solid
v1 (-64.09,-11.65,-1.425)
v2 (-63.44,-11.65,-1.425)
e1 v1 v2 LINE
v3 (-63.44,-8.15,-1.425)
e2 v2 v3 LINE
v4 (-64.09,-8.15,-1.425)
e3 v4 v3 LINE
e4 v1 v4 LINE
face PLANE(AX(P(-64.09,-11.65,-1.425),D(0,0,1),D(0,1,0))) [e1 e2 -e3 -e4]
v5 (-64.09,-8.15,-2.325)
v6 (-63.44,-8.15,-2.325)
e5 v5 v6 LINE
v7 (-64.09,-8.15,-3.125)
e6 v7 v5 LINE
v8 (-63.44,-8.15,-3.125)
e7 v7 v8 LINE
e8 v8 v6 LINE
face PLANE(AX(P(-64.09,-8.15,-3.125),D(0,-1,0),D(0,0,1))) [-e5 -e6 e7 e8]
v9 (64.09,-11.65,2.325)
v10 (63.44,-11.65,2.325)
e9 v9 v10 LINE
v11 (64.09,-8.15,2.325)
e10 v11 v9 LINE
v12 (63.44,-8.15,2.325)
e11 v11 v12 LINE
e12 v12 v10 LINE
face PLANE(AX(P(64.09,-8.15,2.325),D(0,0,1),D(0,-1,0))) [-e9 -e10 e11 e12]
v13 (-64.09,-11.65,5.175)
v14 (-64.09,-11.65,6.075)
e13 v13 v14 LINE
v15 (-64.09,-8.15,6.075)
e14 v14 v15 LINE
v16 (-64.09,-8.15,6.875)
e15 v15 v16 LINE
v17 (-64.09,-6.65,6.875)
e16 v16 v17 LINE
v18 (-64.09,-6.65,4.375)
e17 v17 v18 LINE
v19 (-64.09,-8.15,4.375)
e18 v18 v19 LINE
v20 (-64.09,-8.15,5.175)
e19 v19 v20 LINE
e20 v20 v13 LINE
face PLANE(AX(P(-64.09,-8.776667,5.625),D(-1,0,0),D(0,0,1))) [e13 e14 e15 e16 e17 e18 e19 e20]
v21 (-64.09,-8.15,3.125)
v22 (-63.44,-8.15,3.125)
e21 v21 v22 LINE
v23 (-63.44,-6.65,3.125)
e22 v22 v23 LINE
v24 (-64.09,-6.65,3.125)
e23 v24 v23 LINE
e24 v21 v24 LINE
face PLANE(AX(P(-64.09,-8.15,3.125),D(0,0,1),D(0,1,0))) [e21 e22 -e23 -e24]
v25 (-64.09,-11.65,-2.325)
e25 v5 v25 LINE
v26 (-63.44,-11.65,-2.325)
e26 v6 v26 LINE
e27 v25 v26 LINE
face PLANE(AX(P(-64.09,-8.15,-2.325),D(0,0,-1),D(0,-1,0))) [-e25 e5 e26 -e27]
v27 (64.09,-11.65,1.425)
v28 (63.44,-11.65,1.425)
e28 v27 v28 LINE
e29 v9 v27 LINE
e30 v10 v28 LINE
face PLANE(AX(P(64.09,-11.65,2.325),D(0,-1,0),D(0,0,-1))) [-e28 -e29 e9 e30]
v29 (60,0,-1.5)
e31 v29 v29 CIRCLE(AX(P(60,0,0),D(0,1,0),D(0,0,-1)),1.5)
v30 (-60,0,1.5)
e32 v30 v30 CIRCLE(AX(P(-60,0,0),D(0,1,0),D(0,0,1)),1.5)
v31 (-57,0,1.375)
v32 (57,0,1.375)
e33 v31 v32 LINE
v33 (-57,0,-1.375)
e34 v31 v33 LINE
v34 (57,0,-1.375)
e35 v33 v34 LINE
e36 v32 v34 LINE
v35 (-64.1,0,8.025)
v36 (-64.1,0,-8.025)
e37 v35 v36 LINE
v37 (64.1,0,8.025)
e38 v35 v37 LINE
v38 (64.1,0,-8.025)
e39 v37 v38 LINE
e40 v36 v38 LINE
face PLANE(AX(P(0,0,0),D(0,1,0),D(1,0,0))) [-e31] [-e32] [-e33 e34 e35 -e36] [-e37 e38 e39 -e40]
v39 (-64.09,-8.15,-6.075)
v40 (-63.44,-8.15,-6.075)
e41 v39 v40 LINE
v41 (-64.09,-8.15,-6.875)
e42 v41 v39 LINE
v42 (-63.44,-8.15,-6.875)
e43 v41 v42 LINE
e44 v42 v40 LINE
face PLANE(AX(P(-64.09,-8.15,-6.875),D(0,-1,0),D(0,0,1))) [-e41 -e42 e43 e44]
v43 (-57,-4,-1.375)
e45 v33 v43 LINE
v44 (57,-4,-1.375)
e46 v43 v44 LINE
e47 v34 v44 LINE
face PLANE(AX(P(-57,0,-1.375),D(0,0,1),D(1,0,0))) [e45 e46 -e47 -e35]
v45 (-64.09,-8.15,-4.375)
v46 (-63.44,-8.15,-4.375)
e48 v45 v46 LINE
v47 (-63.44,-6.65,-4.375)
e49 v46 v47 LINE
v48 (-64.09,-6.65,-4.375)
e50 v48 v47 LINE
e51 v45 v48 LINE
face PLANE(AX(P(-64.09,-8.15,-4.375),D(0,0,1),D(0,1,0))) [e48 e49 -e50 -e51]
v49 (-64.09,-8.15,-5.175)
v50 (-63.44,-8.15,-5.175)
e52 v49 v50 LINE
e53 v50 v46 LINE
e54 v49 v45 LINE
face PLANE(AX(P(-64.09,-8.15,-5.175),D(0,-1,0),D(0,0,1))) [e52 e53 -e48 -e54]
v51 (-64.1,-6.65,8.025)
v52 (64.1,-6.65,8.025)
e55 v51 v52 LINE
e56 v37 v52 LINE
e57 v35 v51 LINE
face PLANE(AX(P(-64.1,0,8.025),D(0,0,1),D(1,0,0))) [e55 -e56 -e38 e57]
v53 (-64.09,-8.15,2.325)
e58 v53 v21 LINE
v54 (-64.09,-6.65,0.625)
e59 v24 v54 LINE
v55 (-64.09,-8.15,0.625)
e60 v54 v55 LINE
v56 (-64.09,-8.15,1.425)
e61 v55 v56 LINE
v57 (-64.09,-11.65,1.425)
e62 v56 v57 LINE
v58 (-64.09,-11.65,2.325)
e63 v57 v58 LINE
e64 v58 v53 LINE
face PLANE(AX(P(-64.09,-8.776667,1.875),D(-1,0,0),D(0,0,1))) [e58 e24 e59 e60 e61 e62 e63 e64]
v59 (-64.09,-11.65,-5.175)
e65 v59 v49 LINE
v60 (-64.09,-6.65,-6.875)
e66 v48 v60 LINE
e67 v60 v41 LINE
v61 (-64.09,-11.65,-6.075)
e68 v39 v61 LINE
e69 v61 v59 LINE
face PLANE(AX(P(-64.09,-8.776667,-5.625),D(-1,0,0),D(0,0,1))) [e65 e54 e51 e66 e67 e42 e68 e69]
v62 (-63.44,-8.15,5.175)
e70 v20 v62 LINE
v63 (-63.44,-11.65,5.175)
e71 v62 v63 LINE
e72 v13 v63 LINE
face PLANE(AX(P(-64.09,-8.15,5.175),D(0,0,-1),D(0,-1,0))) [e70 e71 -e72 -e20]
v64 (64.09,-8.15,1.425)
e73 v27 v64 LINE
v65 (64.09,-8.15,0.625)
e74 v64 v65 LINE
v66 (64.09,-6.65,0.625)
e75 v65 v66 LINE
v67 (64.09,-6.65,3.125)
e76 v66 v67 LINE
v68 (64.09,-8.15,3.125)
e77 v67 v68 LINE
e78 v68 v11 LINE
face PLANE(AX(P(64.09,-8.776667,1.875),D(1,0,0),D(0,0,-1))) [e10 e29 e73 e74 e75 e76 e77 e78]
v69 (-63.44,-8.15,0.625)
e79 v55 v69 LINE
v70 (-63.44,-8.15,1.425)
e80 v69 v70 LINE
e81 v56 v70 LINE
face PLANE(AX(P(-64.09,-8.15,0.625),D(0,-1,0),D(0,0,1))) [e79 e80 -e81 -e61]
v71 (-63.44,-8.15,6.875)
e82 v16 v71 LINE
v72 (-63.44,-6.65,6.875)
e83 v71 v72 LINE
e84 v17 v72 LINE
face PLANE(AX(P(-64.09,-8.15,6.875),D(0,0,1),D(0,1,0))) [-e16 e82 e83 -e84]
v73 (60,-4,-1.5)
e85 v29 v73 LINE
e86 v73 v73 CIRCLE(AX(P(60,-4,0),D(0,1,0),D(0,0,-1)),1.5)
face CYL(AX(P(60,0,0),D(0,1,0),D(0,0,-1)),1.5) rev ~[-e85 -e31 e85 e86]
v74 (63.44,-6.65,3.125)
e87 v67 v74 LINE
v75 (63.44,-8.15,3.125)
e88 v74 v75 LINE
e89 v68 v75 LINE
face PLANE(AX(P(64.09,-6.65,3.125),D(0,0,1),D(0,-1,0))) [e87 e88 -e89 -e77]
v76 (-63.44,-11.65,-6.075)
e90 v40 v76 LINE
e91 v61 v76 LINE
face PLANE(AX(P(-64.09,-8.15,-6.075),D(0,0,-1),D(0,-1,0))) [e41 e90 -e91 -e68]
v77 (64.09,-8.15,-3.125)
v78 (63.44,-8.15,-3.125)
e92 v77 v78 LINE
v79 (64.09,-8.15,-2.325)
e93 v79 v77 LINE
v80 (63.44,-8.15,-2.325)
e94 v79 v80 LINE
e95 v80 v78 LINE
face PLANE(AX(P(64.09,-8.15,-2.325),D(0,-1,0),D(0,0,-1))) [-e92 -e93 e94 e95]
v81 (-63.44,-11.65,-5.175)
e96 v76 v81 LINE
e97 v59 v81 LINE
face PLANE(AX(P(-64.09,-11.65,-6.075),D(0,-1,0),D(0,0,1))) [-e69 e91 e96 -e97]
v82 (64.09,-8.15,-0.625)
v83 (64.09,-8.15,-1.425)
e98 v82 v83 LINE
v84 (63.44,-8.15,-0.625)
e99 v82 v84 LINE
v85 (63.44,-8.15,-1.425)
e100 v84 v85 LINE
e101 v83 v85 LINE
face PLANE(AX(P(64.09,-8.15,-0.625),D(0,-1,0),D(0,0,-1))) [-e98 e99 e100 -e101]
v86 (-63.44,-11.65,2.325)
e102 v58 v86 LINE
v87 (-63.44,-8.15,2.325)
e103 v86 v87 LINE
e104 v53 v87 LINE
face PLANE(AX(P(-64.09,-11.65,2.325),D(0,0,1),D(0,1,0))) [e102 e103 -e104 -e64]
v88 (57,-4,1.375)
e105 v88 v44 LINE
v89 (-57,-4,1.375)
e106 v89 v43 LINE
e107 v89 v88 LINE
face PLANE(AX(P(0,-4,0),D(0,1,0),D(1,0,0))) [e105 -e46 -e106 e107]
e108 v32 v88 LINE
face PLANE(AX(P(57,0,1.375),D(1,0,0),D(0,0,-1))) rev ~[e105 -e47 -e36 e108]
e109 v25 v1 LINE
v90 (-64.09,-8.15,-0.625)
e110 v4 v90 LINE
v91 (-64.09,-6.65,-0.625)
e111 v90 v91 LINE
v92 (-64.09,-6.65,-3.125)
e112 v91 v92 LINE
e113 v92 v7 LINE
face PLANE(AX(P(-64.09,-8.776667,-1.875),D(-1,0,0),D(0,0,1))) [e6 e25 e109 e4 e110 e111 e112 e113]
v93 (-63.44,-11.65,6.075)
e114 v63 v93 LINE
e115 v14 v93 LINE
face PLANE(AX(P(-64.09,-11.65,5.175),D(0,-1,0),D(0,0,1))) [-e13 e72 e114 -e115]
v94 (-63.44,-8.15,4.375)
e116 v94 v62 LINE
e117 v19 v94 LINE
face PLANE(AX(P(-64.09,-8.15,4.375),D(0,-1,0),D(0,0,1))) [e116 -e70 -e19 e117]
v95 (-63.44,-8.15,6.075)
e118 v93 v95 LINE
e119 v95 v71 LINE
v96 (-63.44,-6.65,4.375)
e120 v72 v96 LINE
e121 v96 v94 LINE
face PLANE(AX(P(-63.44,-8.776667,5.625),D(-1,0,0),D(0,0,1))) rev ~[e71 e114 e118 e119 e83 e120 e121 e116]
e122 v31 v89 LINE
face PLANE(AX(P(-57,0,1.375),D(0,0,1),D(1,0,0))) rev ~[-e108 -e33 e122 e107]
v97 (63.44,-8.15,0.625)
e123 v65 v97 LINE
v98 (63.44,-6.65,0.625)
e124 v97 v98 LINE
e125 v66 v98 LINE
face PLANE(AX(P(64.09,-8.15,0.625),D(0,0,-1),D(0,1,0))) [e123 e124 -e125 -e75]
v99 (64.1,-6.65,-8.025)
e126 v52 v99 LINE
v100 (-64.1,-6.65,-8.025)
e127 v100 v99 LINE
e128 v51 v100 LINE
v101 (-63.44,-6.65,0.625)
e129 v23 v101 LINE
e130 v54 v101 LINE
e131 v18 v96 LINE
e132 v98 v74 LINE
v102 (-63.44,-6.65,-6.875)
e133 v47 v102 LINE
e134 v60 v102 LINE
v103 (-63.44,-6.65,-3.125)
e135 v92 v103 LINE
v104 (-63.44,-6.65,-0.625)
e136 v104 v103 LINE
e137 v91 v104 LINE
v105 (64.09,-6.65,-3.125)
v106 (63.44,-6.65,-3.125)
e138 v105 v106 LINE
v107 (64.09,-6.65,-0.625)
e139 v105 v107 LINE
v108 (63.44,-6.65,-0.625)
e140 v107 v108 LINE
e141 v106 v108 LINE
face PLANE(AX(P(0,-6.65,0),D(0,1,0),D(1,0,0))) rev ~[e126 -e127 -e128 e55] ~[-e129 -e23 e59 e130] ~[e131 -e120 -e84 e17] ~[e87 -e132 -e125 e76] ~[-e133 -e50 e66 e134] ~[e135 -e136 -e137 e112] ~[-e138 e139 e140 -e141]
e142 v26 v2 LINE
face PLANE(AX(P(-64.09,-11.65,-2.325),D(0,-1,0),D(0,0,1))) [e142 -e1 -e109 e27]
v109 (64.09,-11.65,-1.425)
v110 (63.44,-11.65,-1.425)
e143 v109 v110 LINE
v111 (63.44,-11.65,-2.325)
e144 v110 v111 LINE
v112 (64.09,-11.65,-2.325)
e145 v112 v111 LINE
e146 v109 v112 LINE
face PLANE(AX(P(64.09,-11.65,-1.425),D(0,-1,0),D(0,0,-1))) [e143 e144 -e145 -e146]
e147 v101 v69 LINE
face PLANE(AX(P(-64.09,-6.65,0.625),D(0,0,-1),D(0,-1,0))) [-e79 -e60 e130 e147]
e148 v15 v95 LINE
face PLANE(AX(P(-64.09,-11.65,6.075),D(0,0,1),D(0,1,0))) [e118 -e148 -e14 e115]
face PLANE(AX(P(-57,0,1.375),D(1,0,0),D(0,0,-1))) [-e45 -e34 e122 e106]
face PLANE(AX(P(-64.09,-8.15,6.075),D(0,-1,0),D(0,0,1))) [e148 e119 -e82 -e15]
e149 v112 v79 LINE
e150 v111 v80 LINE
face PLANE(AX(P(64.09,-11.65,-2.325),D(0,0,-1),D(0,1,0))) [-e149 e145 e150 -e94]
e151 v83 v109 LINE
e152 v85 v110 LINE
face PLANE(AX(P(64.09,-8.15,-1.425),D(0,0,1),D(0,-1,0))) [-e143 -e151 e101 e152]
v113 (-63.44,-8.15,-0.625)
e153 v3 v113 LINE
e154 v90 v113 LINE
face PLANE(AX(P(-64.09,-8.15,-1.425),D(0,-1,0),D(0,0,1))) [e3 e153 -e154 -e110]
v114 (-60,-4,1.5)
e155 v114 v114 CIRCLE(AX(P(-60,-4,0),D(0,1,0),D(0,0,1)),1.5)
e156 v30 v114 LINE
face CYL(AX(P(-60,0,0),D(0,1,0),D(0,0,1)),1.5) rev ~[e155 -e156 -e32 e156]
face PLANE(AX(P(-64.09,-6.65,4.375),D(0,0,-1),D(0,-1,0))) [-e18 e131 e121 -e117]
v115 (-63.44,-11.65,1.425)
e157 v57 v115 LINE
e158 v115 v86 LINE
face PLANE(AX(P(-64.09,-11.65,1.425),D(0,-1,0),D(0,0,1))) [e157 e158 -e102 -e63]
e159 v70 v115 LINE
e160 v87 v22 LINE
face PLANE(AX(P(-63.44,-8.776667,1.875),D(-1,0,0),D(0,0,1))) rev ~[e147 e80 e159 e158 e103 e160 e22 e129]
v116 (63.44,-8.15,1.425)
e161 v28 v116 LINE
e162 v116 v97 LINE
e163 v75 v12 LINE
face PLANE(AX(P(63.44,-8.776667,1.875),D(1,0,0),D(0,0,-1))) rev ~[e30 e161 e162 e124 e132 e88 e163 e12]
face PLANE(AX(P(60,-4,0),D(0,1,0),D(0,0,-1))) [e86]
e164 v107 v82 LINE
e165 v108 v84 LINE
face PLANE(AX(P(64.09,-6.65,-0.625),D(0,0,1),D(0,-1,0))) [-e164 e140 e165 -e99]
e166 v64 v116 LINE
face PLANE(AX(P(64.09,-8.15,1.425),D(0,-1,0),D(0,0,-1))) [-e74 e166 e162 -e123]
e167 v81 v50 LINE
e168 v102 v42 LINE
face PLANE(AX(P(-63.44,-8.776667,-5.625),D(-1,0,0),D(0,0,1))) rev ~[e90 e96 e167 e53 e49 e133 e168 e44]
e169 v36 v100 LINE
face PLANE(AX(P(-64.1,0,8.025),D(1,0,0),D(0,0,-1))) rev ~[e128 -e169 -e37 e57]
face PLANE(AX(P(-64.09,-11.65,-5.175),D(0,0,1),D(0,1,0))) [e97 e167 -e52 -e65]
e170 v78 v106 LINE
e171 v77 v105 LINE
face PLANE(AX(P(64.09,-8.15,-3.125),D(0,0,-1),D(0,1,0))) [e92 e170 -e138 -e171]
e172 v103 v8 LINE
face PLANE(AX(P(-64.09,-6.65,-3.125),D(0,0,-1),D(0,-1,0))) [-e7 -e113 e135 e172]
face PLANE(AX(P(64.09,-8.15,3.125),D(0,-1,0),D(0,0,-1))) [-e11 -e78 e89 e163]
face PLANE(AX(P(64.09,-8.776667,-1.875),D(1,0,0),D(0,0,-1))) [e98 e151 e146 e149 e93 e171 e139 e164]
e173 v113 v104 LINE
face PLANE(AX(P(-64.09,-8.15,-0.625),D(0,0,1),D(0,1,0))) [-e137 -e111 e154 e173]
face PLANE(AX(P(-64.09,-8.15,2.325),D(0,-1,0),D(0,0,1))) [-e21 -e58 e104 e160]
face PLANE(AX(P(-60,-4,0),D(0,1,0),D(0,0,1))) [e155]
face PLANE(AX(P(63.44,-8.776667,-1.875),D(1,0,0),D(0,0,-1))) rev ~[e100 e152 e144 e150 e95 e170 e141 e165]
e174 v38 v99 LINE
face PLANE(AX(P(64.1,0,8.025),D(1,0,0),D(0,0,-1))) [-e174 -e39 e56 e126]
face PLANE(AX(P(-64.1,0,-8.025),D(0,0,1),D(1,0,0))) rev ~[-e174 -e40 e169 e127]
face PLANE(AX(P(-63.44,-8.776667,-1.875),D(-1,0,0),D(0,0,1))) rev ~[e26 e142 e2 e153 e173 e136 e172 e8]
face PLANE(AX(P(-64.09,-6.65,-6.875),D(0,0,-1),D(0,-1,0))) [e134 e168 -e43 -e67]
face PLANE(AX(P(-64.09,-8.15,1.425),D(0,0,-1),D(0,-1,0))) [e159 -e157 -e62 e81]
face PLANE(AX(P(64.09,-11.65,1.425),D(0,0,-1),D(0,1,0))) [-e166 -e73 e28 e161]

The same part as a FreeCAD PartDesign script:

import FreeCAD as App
import Part
import Sketcher


def add_polygon(sketch, points):
    """Adds a closed chain of lines whose ends are joined by coincident constraints."""
    first, n = sketch.GeometryCount, len(points)
    for a, b in zip(points, points[1:] + points[:1]):
        sketch.addGeometry(Part.LineSegment(App.Vector(*a, 0), App.Vector(*b, 0)), False)
    for i in range(n):
        sketch.addConstraint(Sketcher.Constraint("Coincident", first + i, 2, first + (i + 1) % n, 1))

doc = App.newDocument("Part")
body = doc.addObject("PartDesign::Body", "Body")

sketch1 = body.newObject("Sketcher::SketchObject", "Sketch")
sketch1.AttachmentSupport = (doc.getObject("XZ_Plane"), [""])
sketch1.MapMode = "FlatFace"
add_polygon(sketch1, [(-64.1, -8.025), (-64.1, 8.025), (64.1, 8.025), (64.1, -8.025)])
sketch1.addConstraint(Sketcher.Constraint("Vertical", 0))
sketch1.addConstraint(Sketcher.Constraint("Horizontal", 1))
sketch1.addConstraint(Sketcher.Constraint("Vertical", 2))
sketch1.addConstraint(Sketcher.Constraint("Horizontal", 3))
sketch1.addConstraint(Sketcher.Constraint("Symmetric", 0, 2, 2, 2, -1, 1))
sketch1.addConstraint(Sketcher.Constraint("DistanceX", 1, 1, 1, 2, 128.2))
sketch1.addConstraint(Sketcher.Constraint("DistanceY", 0, 1, 0, 2, 16.05))
pad1 = body.newObject("PartDesign::Pad", "Pad")
pad1.Profile = sketch1
pad1.Length = 6.65

sketch2 = body.newObject("Sketcher::SketchObject", "Sketch001")
sketch2.AttachmentSupport = (doc.getObject("XZ_Plane"), [""])
sketch2.MapMode = "FlatFace"
sketch2.addGeometry(Part.Circle(App.Vector(-60, 0, 0), App.Vector(0, 0, 1), 1.5), False)
sketch2.addGeometry(Part.Circle(App.Vector(60, 0, 0), App.Vector(0, 0, 1), 1.5), False)
add_polygon(sketch2, [(-57, -1.375), (-57, 1.375), (57, 1.375), (57, -1.375)])
sketch2.addConstraint(Sketcher.Constraint("Vertical", 2))
sketch2.addConstraint(Sketcher.Constraint("Horizontal", 3))
sketch2.addConstraint(Sketcher.Constraint("Vertical", 4))
sketch2.addConstraint(Sketcher.Constraint("Horizontal", 5))
sketch2.addConstraint(Sketcher.Constraint("Equal", 0, 1))
sketch2.addConstraint(Sketcher.Constraint("Symmetric", 0, 3, 1, 3, -1, 1))
sketch2.addConstraint(Sketcher.Constraint("Symmetric", 2, 2, 4, 2, -1, 1))
sketch2.addConstraint(Sketcher.Constraint("PointOnObject", 0, 3, -1))
sketch2.addConstraint(Sketcher.Constraint("Diameter", 0, 3.0))
sketch2.addConstraint(Sketcher.Constraint("DistanceX", 3, 1, 3, 2, 114.0))
sketch2.addConstraint(Sketcher.Constraint("DistanceX", 0, 3, -1, 1, 60.0))
sketch2.addConstraint(Sketcher.Constraint("DistanceY", 2, 1, 2, 2, 2.75))
pocket1 = body.newObject("PartDesign::Pocket", "Pocket")
pocket1.Profile = sketch2
pocket1.Length = 4
pocket1.Reversed = True

sketch3 = body.newObject("Sketcher::SketchObject", "Sketch002")
sketch3.AttachmentSupport = (doc.getObject("YZ_Plane"), [""])
sketch3.MapMode = "FlatFace"
sketch3.AttachmentOffset = App.Placement(App.Vector(0, 0, -64.09), App.Rotation())
add_polygon(sketch3, [(-6.65, -6.875), (-8.15, -6.875), (-8.15, -6.075), (-11.65, -6.075), (-11.65, -5.175), (-8.15, -5.175), (-8.15, -4.375), (-6.65, -4.375)])
add_polygon(sketch3, [(-6.65, -0.625), (-6.65, -3.125), (-8.15, -3.125), (-8.15, -2.325), (-11.65, -2.325), (-11.65, -1.425), (-8.15, -1.425), (-8.15, -0.625)])
add_polygon(sketch3, [(-6.65, 3.125), (-6.65, 0.625), (-8.15, 0.625), (-8.15, 1.425), (-11.65, 1.425), (-11.65, 2.325), (-8.15, 2.325), (-8.15, 3.125)])
add_polygon(sketch3, [(-6.65, 6.875), (-6.65, 4.375), (-8.15, 4.375), (-8.15, 5.175), (-11.65, 5.175), (-11.65, 6.075), (-8.15, 6.075), (-8.15, 6.875)])
sketch3.addConstraint(Sketcher.Constraint("Horizontal", 0))
sketch3.addConstraint(Sketcher.Constraint("Vertical", 1))
sketch3.addConstraint(Sketcher.Constraint("Horizontal", 2))
sketch3.addConstraint(Sketcher.Constraint("Vertical", 3))
sketch3.addConstraint(Sketcher.Constraint("Horizontal", 4))
sketch3.addConstraint(Sketcher.Constraint("Vertical", 5))
sketch3.addConstraint(Sketcher.Constraint("Horizontal", 6))
sketch3.addConstraint(Sketcher.Constraint("Vertical", 7))
sketch3.addConstraint(Sketcher.Constraint("Vertical", 8))
sketch3.addConstraint(Sketcher.Constraint("Horizontal", 9))
sketch3.addConstraint(Sketcher.Constraint("Vertical", 10))
sketch3.addConstraint(Sketcher.Constraint("Horizontal", 11))
sketch3.addConstraint(Sketcher.Constraint("Vertical", 12))
sketch3.addConstraint(Sketcher.Constraint("Horizontal", 13))
sketch3.addConstraint(Sketcher.Constraint("Vertical", 14))
sketch3.addConstraint(Sketcher.Constraint("Horizontal", 15))
sketch3.addConstraint(Sketcher.Constraint("Vertical", 16))
sketch3.addConstraint(Sketcher.Constraint("Horizontal", 17))
sketch3.addConstraint(Sketcher.Constraint("Vertical", 18))
sketch3.addConstraint(Sketcher.Constraint("Horizontal", 19))
sketch3.addConstraint(Sketcher.Constraint("Vertical", 20))
sketch3.addConstraint(Sketcher.Constraint("Horizontal", 21))
sketch3.addConstraint(Sketcher.Constraint("Vertical", 22))
sketch3.addConstraint(Sketcher.Constraint("Horizontal", 23))
sketch3.addConstraint(Sketcher.Constraint("Vertical", 24))
sketch3.addConstraint(Sketcher.Constraint("Horizontal", 25))
sketch3.addConstraint(Sketcher.Constraint("Vertical", 26))
sketch3.addConstraint(Sketcher.Constraint("Horizontal", 27))
sketch3.addConstraint(Sketcher.Constraint("Vertical", 28))
sketch3.addConstraint(Sketcher.Constraint("Horizontal", 29))
sketch3.addConstraint(Sketcher.Constraint("Vertical", 30))
sketch3.addConstraint(Sketcher.Constraint("Horizontal", 31))
sketch3.addConstraint(Sketcher.Constraint("Symmetric", 15, 2, 16, 2, -1))
sketch3.addConstraint(Sketcher.Constraint("Symmetric", 13, 2, 18, 2, -1))
sketch3.addConstraint(Sketcher.Constraint("Symmetric", 11, 2, 20, 2, -1))
sketch3.addConstraint(Sketcher.Constraint("Symmetric", 9, 2, 22, 2, -1))
sketch3.addConstraint(Sketcher.Constraint("Symmetric", 6, 2, 24, 2, -1))
sketch3.addConstraint(Sketcher.Constraint("Symmetric", 4, 2, 26, 2, -1))
sketch3.addConstraint(Sketcher.Constraint("Symmetric", 2, 2, 28, 2, -1))
sketch3.addConstraint(Sketcher.Constraint("Symmetric", 0, 2, 30, 2, -1))
sketch3.addConstraint(Sketcher.Constraint("Vertical", 1, 2, 4, 2))
sketch3.addConstraint(Sketcher.Constraint("Vertical", 7, 2, 8, 2))
sketch3.addConstraint(Sketcher.Constraint("Vertical", 5, 2, 9, 2))
sketch3.addConstraint(Sketcher.Constraint("Vertical", 3, 2, 11, 2))
sketch3.addConstraint(Sketcher.Constraint("Vertical", 10, 2, 13, 2))
sketch3.addConstraint(Sketcher.Constraint("Equal", 1, 5))
sketch3.addConstraint(Sketcher.Constraint("Equal", 7, 8))
sketch3.addConstraint(Sketcher.Constraint("Equal", 5, 10))
sketch3.addConstraint(Sketcher.Constraint("Equal", 3, 12))
sketch3.addConstraint(Sketcher.Constraint("DistanceX", 0, 2, 0, 1, 1.5))
sketch3.addConstraint(Sketcher.Constraint("DistanceX", 2, 2, 2, 1, 3.5))
sketch3.addConstraint(Sketcher.Constraint("DistanceY", 1, 1, 1, 2, 0.8))
sketch3.addConstraint(Sketcher.Constraint("DistanceY", 3, 1, 3, 2, 0.9))
sketch3.addConstraint(Sketcher.Constraint("DistanceX", 0, 2, -1, 1, 8.15))
sketch3.addConstraint(Sketcher.Constraint("DistanceY", 6, 2, 8, 2, 1.25))
sketch3.addConstraint(Sketcher.Constraint("DistanceY", 15, 2, 16, 2, 1.25))
pad2 = body.newObject("PartDesign::Pad", "Pad001")
pad2.Profile = sketch3
pad2.Length = 0.65

sketch4 = body.newObject("Sketcher::SketchObject", "Sketch003")
sketch4.AttachmentSupport = (doc.getObject("YZ_Plane"), [""])
sketch4.MapMode = "FlatFace"
sketch4.AttachmentOffset = App.Placement(App.Vector(0, 0, 64.09), App.Rotation())
add_polygon(sketch4, [(-8.15, 0.625), (-6.65, 0.625), (-6.65, 3.125), (-8.15, 3.125), (-8.15, 2.325), (-11.65, 2.325), (-11.65, 1.425), (-8.15, 1.425)])
add_polygon(sketch4, [(-8.15, -3.125), (-6.65, -3.125), (-6.65, -0.625), (-8.15, -0.625), (-8.15, -1.425), (-11.65, -1.425), (-11.65, -2.325), (-8.15, -2.325)])
sketch4.addConstraint(Sketcher.Constraint("Horizontal", 0))
sketch4.addConstraint(Sketcher.Constraint("Vertical", 1))
sketch4.addConstraint(Sketcher.Constraint("Horizontal", 2))
sketch4.addConstraint(Sketcher.Constraint("Vertical", 3))
sketch4.addConstraint(Sketcher.Constraint("Horizontal", 4))
sketch4.addConstraint(Sketcher.Constraint("Vertical", 5))
sketch4.addConstraint(Sketcher.Constraint("Horizontal", 6))
sketch4.addConstraint(Sketcher.Constraint("Vertical", 7))
sketch4.addConstraint(Sketcher.Constraint("Horizontal", 8))
sketch4.addConstraint(Sketcher.Constraint("Vertical", 9))
sketch4.addConstraint(Sketcher.Constraint("Horizontal", 10))
sketch4.addConstraint(Sketcher.Constraint("Vertical", 11))
sketch4.addConstraint(Sketcher.Constraint("Horizontal", 12))
sketch4.addConstraint(Sketcher.Constraint("Vertical", 13))
sketch4.addConstraint(Sketcher.Constraint("Horizontal", 14))
sketch4.addConstraint(Sketcher.Constraint("Vertical", 15))
sketch4.addConstraint(Sketcher.Constraint("Symmetric", 1, 2, 8, 2, -1))
sketch4.addConstraint(Sketcher.Constraint("Symmetric", 7, 2, 10, 2, -1))
sketch4.addConstraint(Sketcher.Constraint("Symmetric", 5, 2, 12, 2, -1))
sketch4.addConstraint(Sketcher.Constraint("Symmetric", 3, 2, 14, 2, -1))
sketch4.addConstraint(Sketcher.Constraint("Vertical", 3, 2, 6, 2))
sketch4.addConstraint(Sketcher.Constraint("Equal", 3, 7))
sketch4.addConstraint(Sketcher.Constraint("DistanceX", 0, 1, 0, 2, 1.5))
sketch4.addConstraint(Sketcher.Constraint("DistanceX", 4, 2, 4, 1, 3.5))
sketch4.addConstraint(Sketcher.Constraint("DistanceY", 1, 1, 1, 2, 2.5))
sketch4.addConstraint(Sketcher.Constraint("DistanceY", 3, 2, 3, 1, 0.8))
sketch4.addConstraint(Sketcher.Constraint("DistanceX", 0, 2, -1, 1, 6.65))
sketch4.addConstraint(Sketcher.Constraint("DistanceY", 8, 2, 0, 2, 3.75))
pad3 = body.newObject("PartDesign::Pad", "Pad002")
pad3.Profile = sketch4
pad3.Length = 0.65
pad3.Reversed = True

doc.recompute()
